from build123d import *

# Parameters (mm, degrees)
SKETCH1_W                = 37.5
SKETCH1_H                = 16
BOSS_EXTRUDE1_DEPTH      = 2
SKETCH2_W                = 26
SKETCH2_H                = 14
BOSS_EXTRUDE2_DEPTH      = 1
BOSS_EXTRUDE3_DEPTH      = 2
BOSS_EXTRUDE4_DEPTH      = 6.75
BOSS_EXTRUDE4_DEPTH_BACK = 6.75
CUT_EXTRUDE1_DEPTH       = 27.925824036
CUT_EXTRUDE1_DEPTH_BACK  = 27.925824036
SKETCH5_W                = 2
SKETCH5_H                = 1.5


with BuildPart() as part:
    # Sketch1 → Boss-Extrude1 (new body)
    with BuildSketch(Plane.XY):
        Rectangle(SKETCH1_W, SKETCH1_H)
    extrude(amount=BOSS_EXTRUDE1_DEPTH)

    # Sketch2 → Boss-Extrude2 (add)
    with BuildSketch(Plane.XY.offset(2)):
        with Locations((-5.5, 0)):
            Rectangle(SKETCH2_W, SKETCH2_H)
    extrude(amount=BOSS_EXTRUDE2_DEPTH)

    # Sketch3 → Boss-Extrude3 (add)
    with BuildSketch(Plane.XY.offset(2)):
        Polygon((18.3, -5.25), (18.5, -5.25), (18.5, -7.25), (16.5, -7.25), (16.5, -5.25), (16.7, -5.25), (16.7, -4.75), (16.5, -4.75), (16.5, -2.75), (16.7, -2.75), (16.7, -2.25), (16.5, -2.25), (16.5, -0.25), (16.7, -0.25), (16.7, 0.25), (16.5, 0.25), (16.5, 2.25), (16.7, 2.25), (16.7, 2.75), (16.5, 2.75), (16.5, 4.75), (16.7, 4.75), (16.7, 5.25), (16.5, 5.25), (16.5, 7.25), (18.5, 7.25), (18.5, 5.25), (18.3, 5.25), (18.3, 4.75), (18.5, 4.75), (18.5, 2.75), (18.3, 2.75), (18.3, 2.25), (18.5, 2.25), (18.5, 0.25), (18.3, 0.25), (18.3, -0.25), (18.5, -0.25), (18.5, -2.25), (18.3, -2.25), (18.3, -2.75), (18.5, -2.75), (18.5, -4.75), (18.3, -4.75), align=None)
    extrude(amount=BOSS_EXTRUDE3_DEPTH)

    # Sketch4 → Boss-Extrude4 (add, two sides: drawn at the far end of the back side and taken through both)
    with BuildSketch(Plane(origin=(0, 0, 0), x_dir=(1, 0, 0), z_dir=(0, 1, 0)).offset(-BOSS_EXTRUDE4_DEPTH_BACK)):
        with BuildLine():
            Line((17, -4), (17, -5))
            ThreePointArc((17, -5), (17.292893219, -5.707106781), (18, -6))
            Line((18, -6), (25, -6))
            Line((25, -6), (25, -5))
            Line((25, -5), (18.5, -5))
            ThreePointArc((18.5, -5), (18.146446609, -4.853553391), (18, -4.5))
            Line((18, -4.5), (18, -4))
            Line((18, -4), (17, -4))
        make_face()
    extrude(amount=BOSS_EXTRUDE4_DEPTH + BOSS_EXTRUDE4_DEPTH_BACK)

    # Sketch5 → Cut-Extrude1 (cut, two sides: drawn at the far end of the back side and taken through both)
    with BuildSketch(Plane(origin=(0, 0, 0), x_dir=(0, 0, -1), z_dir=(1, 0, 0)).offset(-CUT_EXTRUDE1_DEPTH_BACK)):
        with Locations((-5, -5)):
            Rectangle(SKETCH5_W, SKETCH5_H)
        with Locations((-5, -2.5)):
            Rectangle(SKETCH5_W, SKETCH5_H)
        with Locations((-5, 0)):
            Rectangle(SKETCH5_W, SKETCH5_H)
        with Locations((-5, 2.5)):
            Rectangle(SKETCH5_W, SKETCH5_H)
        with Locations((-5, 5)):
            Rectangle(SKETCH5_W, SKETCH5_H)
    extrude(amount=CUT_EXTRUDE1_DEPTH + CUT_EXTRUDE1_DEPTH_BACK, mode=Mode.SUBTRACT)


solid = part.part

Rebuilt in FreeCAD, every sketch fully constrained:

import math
import FreeCAD as App
import Part
import Sketcher
Q = App.Units.Quantity

doc = App.newDocument("Part")
body = doc.addObject("PartDesign::Body", "Body")

# Sketch on XY plane
sketch1 = body.newObject("Sketcher::SketchObject", "Sketch")
sketch1.AttachmentSupport = (doc.getObject("XY_Plane"), [""])
sketch1.MapMode = "FlatFace"
sketch1.addGeometry(Part.LineSegment(App.Vector(-18.75, 8, 0), App.Vector(-18.75, -8, 0)), False)
sketch1.addGeometry(Part.LineSegment(App.Vector(-18.75, -8, 0), App.Vector(18.75, -8, 0)), False)
sketch1.addGeometry(Part.LineSegment(App.Vector(18.75, -8, 0), App.Vector(18.75, 8, 0)), False)
sketch1.addGeometry(Part.LineSegment(App.Vector(18.75, 8, 0), App.Vector(-18.75, 8, 0)), False)
sketch1.addConstraint(Sketcher.Constraint("Coincident", 0, 2, 1, 1))
sketch1.addConstraint(Sketcher.Constraint("Coincident", 1, 2, 2, 1))
sketch1.addConstraint(Sketcher.Constraint("Coincident", 2, 2, 3, 1))
sketch1.addConstraint(Sketcher.Constraint("Coincident", 3, 2, 0, 1))
sketch1.addConstraint(Sketcher.Constraint("Vertical", 0))
sketch1.addConstraint(Sketcher.Constraint("Horizontal", 1))
sketch1.addConstraint(Sketcher.Constraint("Vertical", 2))
sketch1.addConstraint(Sketcher.Constraint("Horizontal", 3))
sketch1.addConstraint(Sketcher.Constraint("Symmetric", 0, 2, 2, 2, -1, 1))
sketch1.addConstraint(Sketcher.Constraint("DistanceY", 0, 2, 0, 1, Q("16 mm")))
sketch1.addConstraint(Sketcher.Constraint("DistanceX", 1, 1, 1, 2, Q("37.5 mm")))
pad1 = body.newObject("PartDesign::Pad", "Pad")
pad1.Profile = sketch1
pad1.Length = 2

# Sketch on XY plane
sketch2 = body.newObject("Sketcher::SketchObject", "Sketch001")
sketch2.AttachmentSupport = (doc.getObject("XY_Plane"), [""])
sketch2.MapMode = "FlatFace"
sketch2.AttachmentOffset = App.Placement(App.Vector(0, 0, 2), App.Rotation())
sketch2.addGeometry(Part.LineSegment(App.Vector(-18.5, 7, 0), App.Vector(-18.5, -7, 0)), False)
sketch2.addGeometry(Part.LineSegment(App.Vector(-18.5, -7, 0), App.Vector(7.5, -7, 0)), False)
sketch2.addGeometry(Part.LineSegment(App.Vector(7.5, -7, 0), App.Vector(7.5, 7, 0)), False)
sketch2.addGeometry(Part.LineSegment(App.Vector(7.5, 7, 0), App.Vector(-18.5, 7, 0)), False)
sketch2.addConstraint(Sketcher.Constraint("Coincident", 0, 2, 1, 1))
sketch2.addConstraint(Sketcher.Constraint("Coincident", 1, 2, 2, 1))
sketch2.addConstraint(Sketcher.Constraint("Coincident", 2, 2, 3, 1))
sketch2.addConstraint(Sketcher.Constraint("Coincident", 3, 2, 0, 1))
sketch2.addConstraint(Sketcher.Constraint("Vertical", 0))
sketch2.addConstraint(Sketcher.Constraint("Horizontal", 1))
sketch2.addConstraint(Sketcher.Constraint("Vertical", 2))
sketch2.addConstraint(Sketcher.Constraint("Horizontal", 3))
sketch2.addConstraint(Sketcher.Constraint("DistanceX", 1, 1, 1, 2, Q("26 mm")))
sketch2.addConstraint(Sketcher.Constraint("DistanceY", 0, 2, 0, 1, Q("14 mm")))
sketch2.addConstraint(Sketcher.Constraint("DistanceY", 0, 2, -1, 1, Q("7 mm")))
sketch2.addConstraint(Sketcher.Constraint("DistanceX", 0, 2, -1, 1, Q("18.5 mm")))
pad2 = body.newObject("PartDesign::Pad", "Pad001")
pad2.Profile = sketch2
pad2.Length = 1

# Sketch on XY plane
sketch3 = body.newObject("Sketcher::SketchObject", "Sketch002")
sketch3.AttachmentSupport = (doc.getObject("XY_Plane"), [""])
sketch3.MapMode = "FlatFace"
sketch3.AttachmentOffset = App.Placement(App.Vector(0, 0, 2), App.Rotation())
sketch3.addGeometry(Part.LineSegment(App.Vector(18.5, -5.25, 0), App.Vector(18.3, -5.25, 0)), False)
sketch3.addGeometry(Part.LineSegment(App.Vector(18.3, -5.25, 0), App.Vector(18.3, -4.75, 0)), False)
sketch3.addGeometry(Part.LineSegment(App.Vector(18.3, -4.75, 0), App.Vector(18.5, -4.75, 0)), False)
sketch3.addGeometry(Part.LineSegment(App.Vector(18.5, -4.75, 0), App.Vector(18.5, -2.75, 0)), False)
sketch3.addGeometry(Part.LineSegment(App.Vector(18.5, -2.75, 0), App.Vector(18.3, -2.75, 0)), False)
sketch3.addGeometry(Part.LineSegment(App.Vector(18.3, -2.75, 0), App.Vector(18.3, -2.25, 0)), False)
sketch3.addGeometry(Part.LineSegment(App.Vector(18.3, -2.25, 0), App.Vector(18.5, -2.25, 0)), False)
sketch3.addGeometry(Part.LineSegment(App.Vector(18.5, -2.25, 0), App.Vector(18.5, -0.25, 0)), False)
sketch3.addGeometry(Part.LineSegment(App.Vector(18.5, -0.25, 0), App.Vector(18.3, -0.25, 0)), False)
sketch3.addGeometry(Part.LineSegment(App.Vector(18.3, -0.25, 0), App.Vector(18.3, 0.25, 0)), False)
sketch3.addGeometry(Part.LineSegment(App.Vector(18.3, 0.25, 0), App.Vector(18.5, 0.25, 0)), False)
sketch3.addGeometry(Part.LineSegment(App.Vector(18.5, 0.25, 0), App.Vector(18.5, 2.25, 0)), False)
sketch3.addGeometry(Part.LineSegment(App.Vector(18.5, 2.25, 0), App.Vector(18.3, 2.25, 0)), False)
sketch3.addGeometry(Part.LineSegment(App.Vector(18.3, 2.25, 0), App.Vector(18.3, 2.75, 0)), False)
sketch3.addGeometry(Part.LineSegment(App.Vector(18.3, 2.75, 0), App.Vector(18.5, 2.75, 0)), False)
sketch3.addGeometry(Part.LineSegment(App.Vector(18.5, 2.75, 0), App.Vector(18.5, 4.75, 0)), False)
sketch3.addGeometry(Part.LineSegment(App.Vector(18.5, 4.75, 0), App.Vector(18.3, 4.75, 0)), False)
sketch3.addGeometry(Part.LineSegment(App.Vector(18.3, 4.75, 0), App.Vector(18.3, 5.25, 0)), False)
sketch3.addGeometry(Part.LineSegment(App.Vector(18.3, 5.25, 0), App.Vector(18.5, 5.25, 0)), False)
sketch3.addGeometry(Part.LineSegment(App.Vector(18.5, 5.25, 0), App.Vector(18.5, 7.25, 0)), False)
sketch3.addGeometry(Part.LineSegment(App.Vector(18.5, 7.25, 0), App.Vector(16.5, 7.25, 0)), False)
sketch3.addGeometry(Part.LineSegment(App.Vector(16.5, 7.25, 0), App.Vector(16.5, 5.25, 0)), False)
sketch3.addGeometry(Part.LineSegment(App.Vector(16.5, 5.25, 0), App.Vector(16.7, 5.25, 0)), False)
sketch3.addGeometry(Part.LineSegment(App.Vector(16.7, 5.25, 0), App.Vector(16.7, 4.75, 0)), False)
sketch3.addGeometry(Part.LineSegment(App.Vector(16.7, 4.75, 0), App.Vector(16.5, 4.75, 0)), False)
sketch3.addGeometry(Part.LineSegment(App.Vector(16.5, 4.75, 0), App.Vector(16.5, 2.75, 0)), False)
sketch3.addGeometry(Part.LineSegment(App.Vector(16.5, 2.75, 0), App.Vector(16.7, 2.75, 0)), False)
sketch3.addGeometry(Part.LineSegment(App.Vector(16.7, 2.75, 0), App.Vector(16.7, 2.25, 0)), False)
sketch3.addGeometry(Part.LineSegment(App.Vector(16.7, 2.25, 0), App.Vector(16.5, 2.25, 0)), False)
sketch3.addGeometry(Part.LineSegment(App.Vector(16.5, 2.25, 0), App.Vector(16.5, 0.25, 0)), False)
sketch3.addGeometry(Part.LineSegment(App.Vector(16.5, 0.25, 0), App.Vector(16.7, 0.25, 0)), False)
sketch3.addGeometry(Part.LineSegment(App.Vector(16.7, 0.25, 0), App.Vector(16.7, -0.25, 0)), False)
sketch3.addGeometry(Part.LineSegment(App.Vector(16.7, -0.25, 0), App.Vector(16.5, -0.25, 0)), False)
sketch3.addGeometry(Part.LineSegment(App.Vector(16.5, -0.25, 0), App.Vector(16.5, -2.25, 0)), False)
sketch3.addGeometry(Part.LineSegment(App.Vector(16.5, -2.25, 0), App.Vector(16.7, -2.25, 0)), False)
sketch3.addGeometry(Part.LineSegment(App.Vector(16.7, -2.25, 0), App.Vector(16.7, -2.75, 0)), False)
sketch3.addGeometry(Part.LineSegment(App.Vector(16.7, -2.75, 0), App.Vector(16.5, -2.75, 0)), False)
sketch3.addGeometry(Part.LineSegment(App.Vector(16.5, -2.75, 0), App.Vector(16.5, -4.75, 0)), False)
sketch3.addGeometry(Part.LineSegment(App.Vector(16.5, -4.75, 0), App.Vector(16.7, -4.75, 0)), False)
sketch3.addGeometry(Part.LineSegment(App.Vector(16.7, -4.75, 0), App.Vector(16.7, -5.25, 0)), False)
sketch3.addGeometry(Part.LineSegment(App.Vector(16.7, -5.25, 0), App.Vector(16.5, -5.25, 0)), False)
sketch3.addGeometry(Part.LineSegment(App.Vector(16.5, -5.25, 0), App.Vector(16.5, -7.25, 0)), False)
sketch3.addGeometry(Part.LineSegment(App.Vector(16.5, -7.25, 0), App.Vector(18.5, -7.25, 0)), False)
sketch3.addGeometry(Part.LineSegment(App.Vector(18.5, -7.25, 0), App.Vector(18.5, -5.25, 0)), False)
sketch3.addConstraint(Sketcher.Constraint("Coincident", 0, 2, 1, 1))
sketch3.addConstraint(Sketcher.Constraint("Coincident", 1, 2, 2, 1))
sketch3.addConstraint(Sketcher.Constraint("Coincident", 2, 2, 3, 1))
sketch3.addConstraint(Sketcher.Constraint("Coincident", 3, 2, 4, 1))
sketch3.addConstraint(Sketcher.Constraint("Coincident", 4, 2, 5, 1))
sketch3.addConstraint(Sketcher.Constraint("Coincident", 5, 2, 6, 1))
sketch3.addConstraint(Sketcher.Constraint("Coincident", 6, 2, 7, 1))
sketch3.addConstraint(Sketcher.Constraint("Coincident", 7, 2, 8, 1))
sketch3.addConstraint(Sketcher.Constraint("Coincident", 8, 2, 9, 1))
sketch3.addConstraint(Sketcher.Constraint("Coincident", 9, 2, 10, 1))
sketch3.addConstraint(Sketcher.Constraint("Coincident", 10, 2, 11, 1))
sketch3.addConstraint(Sketcher.Constraint("Coincident", 11, 2, 12, 1))
sketch3.addConstraint(Sketcher.Constraint("Coincident", 12, 2, 13, 1))
sketch3.addConstraint(Sketcher.Constraint("Coincident", 13, 2, 14, 1))
sketch3.addConstraint(Sketcher.Constraint("Coincident", 14, 2, 15, 1))
sketch3.addConstraint(Sketcher.Constraint("Coincident", 15, 2, 16, 1))
sketch3.addConstraint(Sketcher.Constraint("Coincident", 16, 2, 17, 1))
sketch3.addConstraint(Sketcher.Constraint("Coincident", 17, 2, 18, 1))
sketch3.addConstraint(Sketcher.Constraint("Coincident", 18, 2, 19, 1))
sketch3.addConstraint(Sketcher.Constraint("Coincident", 19, 2, 20, 1))
sketch3.addConstraint(Sketcher.Constraint("Coincident", 20, 2, 21, 1))
sketch3.addConstraint(Sketcher.Constraint("Coincident", 21, 2, 22, 1))
sketch3.addConstraint(Sketcher.Constraint("Coincident", 22, 2, 23, 1))
sketch3.addConstraint(Sketcher.Constraint("Coincident", 23, 2, 24, 1))
sketch3.addConstraint(Sketcher.Constraint("Coincident", 24, 2, 25, 1))
sketch3.addConstraint(Sketcher.Constraint("Coincident", 25, 2, 26, 1))
sketch3.addConstraint(Sketcher.Constraint("Coincident", 26, 2, 27, 1))
sketch3.addConstraint(Sketcher.Constraint("Coincident", 27, 2, 28, 1))
sketch3.addConstraint(Sketcher.Constraint("Coincident", 28, 2, 29, 1))
sketch3.addConstraint(Sketcher.Constraint("Coincident", 29, 2, 30, 1))
sketch3.addConstraint(Sketcher.Constraint("Coincident", 30, 2, 31, 1))
sketch3.addConstraint(Sketcher.Constraint("Coincident", 31, 2, 32, 1))
sketch3.addConstraint(Sketcher.Constraint("Coincident", 32, 2, 33, 1))
sketch3.addConstraint(Sketcher.Constraint("Coincident", 33, 2, 34, 1))
sketch3.addConstraint(Sketcher.Constraint("Coincident", 34, 2, 35, 1))
sketch3.addConstraint(Sketcher.Constraint("Coincident", 35, 2, 36, 1))
sketch3.addConstraint(Sketcher.Constraint("Coincident", 36, 2, 37, 1))
sketch3.addConstraint(Sketcher.Constraint("Coincident", 37, 2, 38, 1))
sketch3.addConstraint(Sketcher.Constraint("Coincident", 38, 2, 39, 1))
sketch3.addConstraint(Sketcher.Constraint("Coincident", 39, 2, 40, 1))
sketch3.addConstraint(Sketcher.Constraint("Coincident", 40, 2, 41, 1))
sketch3.addConstraint(Sketcher.Constraint("Coincident", 41, 2, 42, 1))
sketch3.addConstraint(Sketcher.Constraint("Coincident", 42, 2, 43, 1))
sketch3.addConstraint(Sketcher.Constraint("Coincident", 43, 2, 0, 1))
sketch3.addConstraint(Sketcher.Constraint("Horizontal", 0))
sketch3.addConstraint(Sketcher.Constraint("Vertical", 1))
sketch3.addConstraint(Sketcher.Constraint("Horizontal", 2))
sketch3.addConstraint(Sketcher.Constraint("Vertical", 3))
sketch3.addConstraint(Sketcher.Constraint("Horizontal", 4))
sketch3.addConstraint(Sketcher.Constraint("Vertical", 5))
sketch3.addConstraint(Sketcher.Constraint("Horizontal", 6))
sketch3.addConstraint(Sketcher.Constraint("Vertical", 7))
sketch3.addConstraint(Sketcher.Constraint("Horizontal", 8))
sketch3.addConstraint(Sketcher.Constraint("Vertical", 9))
sketch3.addConstraint(Sketcher.Constraint("Horizontal", 10))
sketch3.addConstraint(Sketcher.Constraint("Vertical", 11))
sketch3.addConstraint(Sketcher.Constraint("Horizontal", 12))
sketch3.addConstraint(Sketcher.Constraint("Vertical", 13))
sketch3.addConstraint(Sketcher.Constraint("Horizontal", 14))
sketch3.addConstraint(Sketcher.Constraint("Vertical", 15))
sketch3.addConstraint(Sketcher.Constraint("Horizontal", 16))
sketch3.addConstraint(Sketcher.Constraint("Vertical", 17))
sketch3.addConstraint(Sketcher.Constraint("Horizontal", 18))
sketch3.addConstraint(Sketcher.Constraint("Vertical", 19))
sketch3.addConstraint(Sketcher.Constraint("Horizontal", 20))
sketch3.addConstraint(Sketcher.Constraint("Vertical", 21))
sketch3.addConstraint(Sketcher.Constraint("Horizontal", 22))
sketch3.addConstraint(Sketcher.Constraint("Vertical", 23))
sketch3.addConstraint(Sketcher.Constraint("Horizontal", 24))
sketch3.addConstraint(Sketcher.Constraint("Vertical", 25))
sketch3.addConstraint(Sketcher.Constraint("Horizontal", 26))
sketch3.addConstraint(Sketcher.Constraint("Vertical", 27))
sketch3.addConstraint(Sketcher.Constraint("Horizontal", 28))
sketch3.addConstraint(Sketcher.Constraint("Vertical", 29))
sketch3.addConstraint(Sketcher.Constraint("Horizontal", 30))
sketch3.addConstraint(Sketcher.Constraint("Vertical", 31))
sketch3.addConstraint(Sketcher.Constraint("Horizontal", 32))
sketch3.addConstraint(Sketcher.Constraint("Vertical", 33))
sketch3.addConstraint(Sketcher.Constraint("Horizontal", 34))
sketch3.addConstraint(Sketcher.Constraint("Vertical", 35))
sketch3.addConstraint(Sketcher.Constraint("Horizontal", 36))
sketch3.addConstraint(Sketcher.Constraint("Vertical", 37))
sketch3.addConstraint(Sketcher.Constraint("Horizontal", 38))
sketch3.addConstraint(Sketcher.Constraint("Vertical", 39))
sketch3.addConstraint(Sketcher.Constraint("Horizontal", 40))
sketch3.addConstraint(Sketcher.Constraint("Vertical", 41))
sketch3.addConstraint(Sketcher.Constraint("Horizontal", 42))
sketch3.addConstraint(Sketcher.Constraint("Vertical", 43))
sketch3.addConstraint(Sketcher.Constraint("Symmetric", 7, 2, 10, 2, -1))
sketch3.addConstraint(Sketcher.Constraint("Symmetric", 5, 2, 12, 2, -1))
sketch3.addConstraint(Sketcher.Constraint("Symmetric", 3, 2, 14, 2, -1))
sketch3.addConstraint(Sketcher.Constraint("Symmetric", 1, 2, 16, 2, -1))
sketch3.addConstraint(Sketcher.Constraint("Symmetric", 29, 2, 32, 2, -1))
sketch3.addConstraint(Sketcher.Constraint("Symmetric", 27, 2, 34, 2, -1))
sketch3.addConstraint(Sketcher.Constraint("Symmetric", 25, 2, 36, 2, -1))
sketch3.addConstraint(Sketcher.Constraint("Symmetric", 23, 2, 38, 2, -1))
sketch3.addConstraint(Sketcher.Constraint("Symmetric", 21, 2, 40, 2, -1))
sketch3.addConstraint(Sketcher.Constraint("Symmetric", 19, 2, 42, 2, -1))
sketch3.addConstraint(Sketcher.Constraint("Horizontal", 18, 2, 21, 2))
sketch3.addConstraint(Sketcher.Constraint("Horizontal", 16, 2, 23, 2))
sketch3.addConstraint(Sketcher.Constraint("Horizontal", 14, 2, 25, 2))
sketch3.addConstraint(Sketcher.Constraint("Horizontal", 12, 2, 27, 2))
sketch3.addConstraint(Sketcher.Constraint("Horizontal", 10, 2, 29, 2))
sketch3.addConstraint(Sketcher.Constraint("Horizontal", 0, 2, 39, 2))
sketch3.addConstraint(Sketcher.Constraint("Vertical", 1, 2, 4, 2))
sketch3.addConstraint(Sketcher.Constraint("Vertical", 3, 2, 6, 2))
sketch3.addConstraint(Sketcher.Constraint("Vertical", 5, 2, 8, 2))
sketch3.addConstraint(Sketcher.Constraint("Vertical", 15, 2, 18, 2))
sketch3.addConstraint(Sketcher.Constraint("Vertical", 21, 2, 24, 2))
sketch3.addConstraint(Sketcher.Constraint("Vertical", 23, 2, 26, 2))
sketch3.addConstraint(Sketcher.Constraint("Vertical", 25, 2, 28, 2))
sketch3.addConstraint(Sketcher.Constraint("Vertical", 27, 2, 30, 2))
sketch3.addConstraint(Sketcher.Constraint("Equal", 18, 22))
sketch3.addConstraint(Sketcher.Constraint("Equal", 42, 3))
sketch3.addConstraint(Sketcher.Constraint("Equal", 1, 5))
sketch3.addConstraint(Sketcher.Constraint("Equal", 3, 7))
sketch3.addConstraint(Sketcher.Constraint("Equal", 5, 9))
sketch3.addConstraint(Sketcher.Constraint("Equal", 15, 19))
sketch3.addConstraint(Sketcher.Constraint("DistanceX", 20, 2, 20, 1, Q("2 mm")))
sketch3.addConstraint(Sketcher.Constraint("DistanceX", 0, 2, 0, 1, Q("0.2 mm")))
sketch3.addConstraint(Sketcher.Constraint("DistanceY", 1, 1, 1, 2, Q("0.5 mm")))
sketch3.addConstraint(Sketcher.Constraint("DistanceX", -1, 1, 0, 2, Q("18.3 mm")))
pad3 = body.newObject("PartDesign::Pad", "Pad002")
pad3.Profile = sketch3
pad3.Length = 2

# Sketch on XZ plane
sketch4 = body.newObject("Sketcher::SketchObject", "Sketch003")
sketch4.AttachmentSupport = (doc.getObject("XZ_Plane"), [""])
sketch4.MapMode = "FlatFace"
sketch4.addGeometry(Part.LineSegment(App.Vector(17, 4, 0), App.Vector(17, 5, 0)), False)
sketch4.addGeometry(Part.ArcOfCircle(Part.Circle(App.Vector(18, 5, 0), App.Vector(0, 0, 1), 1), math.radians(90), math.radians(180)), False)
sketch4.addGeometry(Part.LineSegment(App.Vector(18, 6, 0), App.Vector(25, 6, 0)), False)
sketch4.addGeometry(Part.LineSegment(App.Vector(25, 6, 0), App.Vector(25, 5, 0)), False)
sketch4.addGeometry(Part.LineSegment(App.Vector(25, 5, 0), App.Vector(18.5, 5, 0)), False)
sketch4.addGeometry(Part.ArcOfCircle(Part.Circle(App.Vector(18.5, 4.5, 0), App.Vector(0, 0, 1), 0.5), math.radians(90), math.radians(180)), False)
sketch4.addGeometry(Part.LineSegment(App.Vector(18, 4.5, 0), App.Vector(18, 4, 0)), False)
sketch4.addGeometry(Part.LineSegment(App.Vector(18, 4, 0), App.Vector(17, 4, 0)), False)
sketch4.addConstraint(Sketcher.Constraint("Tangent", 0, 2, 1, 2))
sketch4.addConstraint(Sketcher.Constraint("Tangent", 1, 1, 2, 1))
sketch4.addConstraint(Sketcher.Constraint("Coincident", 2, 2, 3, 1))
sketch4.addConstraint(Sketcher.Constraint("Coincident", 3, 2, 4, 1))
sketch4.addConstraint(Sketcher.Constraint("Tangent", 4, 2, 5, 1))
sketch4.addConstraint(Sketcher.Constraint("Tangent", 5, 2, 6, 1))
sketch4.addConstraint(Sketcher.Constraint("Coincident", 6, 2, 7, 1))
sketch4.addConstraint(Sketcher.Constraint("Coincident", 7, 2, 0, 1))
sketch4.addConstraint(Sketcher.Constraint("Vertical", 0))
sketch4.addConstraint(Sketcher.Constraint("Horizontal", 2))
sketch4.addConstraint(Sketcher.Constraint("Vertical", 3))
sketch4.addConstraint(Sketcher.Constraint("Horizontal", 4))
sketch4.addConstraint(Sketcher.Constraint("Vertical", 6))
sketch4.addConstraint(Sketcher.Constraint("Horizontal", 7))
sketch4.addConstraint(Sketcher.Constraint("Horizontal", 0, 2, 3, 2))
sketch4.addConstraint(Sketcher.Constraint("Vertical", 1, 1, 5, 2))
sketch4.addConstraint(Sketcher.Constraint("Equal", 7, 0))
sketch4.addConstraint(Sketcher.Constraint("Radius", 1, Q("1 mm")))
sketch4.addConstraint(Sketcher.Constraint("Radius", 5, Q("0.5 mm")))
sketch4.addConstraint(Sketcher.Constraint("DistanceX", 2, 1, 2, 2, Q("7 mm")))
sketch4.addConstraint(Sketcher.Constraint("DistanceX", -1, 1, 1, 3, Q("18 mm")))
sketch4.addConstraint(Sketcher.Constraint("DistanceY", -1, 1, 1, 3, Q("5 mm")))
pad4 = body.newObject("PartDesign::Pad", "Pad003")
pad4.Profile = sketch4
pad4.Type = "TwoLengths"
pad4.Length = 6.75
pad4.Length2 = 6.75
pad4.Reversed = True

# Sketch on YZ plane
sketch5 = body.newObject("Sketcher::SketchObject", "Sketch004")
sketch5.AttachmentSupport = (doc.getObject("YZ_Plane"), [""])
sketch5.MapMode = "FlatFace"
sketch5.addGeometry(Part.LineSegment(App.Vector(-4.25, 6, 0), App.Vector(-5.75, 6, 0)), False)
sketch5.addGeometry(Part.LineSegment(App.Vector(-5.75, 6, 0), App.Vector(-5.75, 4, 0)), False)
sketch5.addGeometry(Part.LineSegment(App.Vector(-5.75, 4, 0), App.Vector(-4.25, 4, 0)), False)
sketch5.addGeometry(Part.LineSegment(App.Vector(-4.25, 4, 0), App.Vector(-4.25, 6, 0)), False)
sketch5.addGeometry(Part.LineSegment(App.Vector(-1.75, 6, 0), App.Vector(-3.25, 6, 0)), False)
sketch5.addGeometry(Part.LineSegment(App.Vector(-3.25, 6, 0), App.Vector(-3.25, 4, 0)), False)
sketch5.addGeometry(Part.LineSegment(App.Vector(-3.25, 4, 0), App.Vector(-1.75, 4, 0)), False)
sketch5.addGeometry(Part.LineSegment(App.Vector(-1.75, 4, 0), App.Vector(-1.75, 6, 0)), False)
sketch5.addGeometry(Part.LineSegment(App.Vector(0.75, 6, 0), App.Vector(-0.75, 6, 0)), False)
sketch5.addGeometry(Part.LineSegment(App.Vector(-0.75, 6, 0), App.Vector(-0.75, 4, 0)), False)
sketch5.addGeometry(Part.LineSegment(App.Vector(-0.75, 4, 0), App.Vector(0.75, 4, 0)), False)
sketch5.addGeometry(Part.LineSegment(App.Vector(0.75, 4, 0), App.Vector(0.75, 6, 0)), False)
sketch5.addGeometry(Part.LineSegment(App.Vector(3.25, 6, 0), App.Vector(1.75, 6, 0)), False)
sketch5.addGeometry(Part.LineSegment(App.Vector(1.75, 6, 0), App.Vector(1.75, 4, 0)), False)
sketch5.addGeometry(Part.LineSegment(App.Vector(1.75, 4, 0), App.Vector(3.25, 4, 0)), False)
sketch5.addGeometry(Part.LineSegment(App.Vector(3.25, 4, 0), App.Vector(3.25, 6, 0)), False)
sketch5.addGeometry(Part.LineSegment(App.Vector(5.75, 6, 0), App.Vector(4.25, 6, 0)), False)
sketch5.addGeometry(Part.LineSegment(App.Vector(4.25, 6, 0), App.Vector(4.25, 4, 0)), False)
sketch5.addGeometry(Part.LineSegment(App.Vector(4.25, 4, 0), App.Vector(5.75, 4, 0)), False)
sketch5.addGeometry(Part.LineSegment(App.Vector(5.75, 4, 0), App.Vector(5.75, 6, 0)), False)
sketch5.addConstraint(Sketcher.Constraint("Coincident", 0, 2, 1, 1))
sketch5.addConstraint(Sketcher.Constraint("Coincident", 1, 2, 2, 1))
sketch5.addConstraint(Sketcher.Constraint("Coincident", 2, 2, 3, 1))
sketch5.addConstraint(Sketcher.Constraint("Coincident", 3, 2, 0, 1))
sketch5.addConstraint(Sketcher.Constraint("Coincident", 4, 2, 5, 1))
sketch5.addConstraint(Sketcher.Constraint("Coincident", 5, 2, 6, 1))
sketch5.addConstraint(Sketcher.Constraint("Coincident", 6, 2, 7, 1))
sketch5.addConstraint(Sketcher.Constraint("Coincident", 7, 2, 4, 1))
sketch5.addConstraint(Sketcher.Constraint("Coincident", 8, 2, 9, 1))
sketch5.addConstraint(Sketcher.Constraint("Coincident", 9, 2, 10, 1))
sketch5.addConstraint(Sketcher.Constraint("Coincident", 10, 2, 11, 1))
sketch5.addConstraint(Sketcher.Constraint("Coincident", 11, 2, 8, 1))
sketch5.addConstraint(Sketcher.Constraint("Coincident", 12, 2, 13, 1))
sketch5.addConstraint(Sketcher.Constraint("Coincident", 13, 2, 14, 1))
sketch5.addConstraint(Sketcher.Constraint("Coincident", 14, 2, 15, 1))
sketch5.addConstraint(Sketcher.Constraint("Coincident", 15, 2, 12, 1))
sketch5.addConstraint(Sketcher.Constraint("Coincident", 16, 2, 17, 1))
sketch5.addConstraint(Sketcher.Constraint("Coincident", 17, 2, 18, 1))
sketch5.addConstraint(Sketcher.Constraint("Coincident", 18, 2, 19, 1))
sketch5.addConstraint(Sketcher.Constraint("Coincident", 19, 2, 16, 1))
sketch5.addConstraint(Sketcher.Constraint("Horizontal", 0))
sketch5.addConstraint(Sketcher.Constraint("Vertical", 1))
sketch5.addConstraint(Sketcher.Constraint("Horizontal", 2))
sketch5.addConstraint(Sketcher.Constraint("Vertical", 3))
sketch5.addConstraint(Sketcher.Constraint("Horizontal", 4))
sketch5.addConstraint(Sketcher.Constraint("Vertical", 5))
sketch5.addConstraint(Sketcher.Constraint("Horizontal", 6))
sketch5.addConstraint(Sketcher.Constraint("Vertical", 7))
sketch5.addConstraint(Sketcher.Constraint("Horizontal", 8))
sketch5.addConstraint(Sketcher.Constraint("Vertical", 9))
sketch5.addConstraint(Sketcher.Constraint("Horizontal", 10))
sketch5.addConstraint(Sketcher.Constraint("Vertical", 11))
sketch5.addConstraint(Sketcher.Constraint("Horizontal", 12))
sketch5.addConstraint(Sketcher.Constraint("Vertical", 13))
sketch5.addConstraint(Sketcher.Constraint("Horizontal", 14))
sketch5.addConstraint(Sketcher.Constraint("Vertical", 15))
sketch5.addConstraint(Sketcher.Constraint("Horizontal", 16))
sketch5.addConstraint(Sketcher.Constraint("Vertical", 17))
sketch5.addConstraint(Sketcher.Constraint("Horizontal", 18))
sketch5.addConstraint(Sketcher.Constraint("Vertical", 19))
sketch5.addConstraint(Sketcher.Constraint("Symmetric", 7, 2, 12, 2, -2))
sketch5.addConstraint(Sketcher.Constraint("Symmetric", 5, 2, 14, 2, -2))
sketch5.addConstraint(Sketcher.Constraint("Symmetric", 3, 2, 16, 2, -2))
sketch5.addConstraint(Sketcher.Constraint("Symmetric", 1, 2, 18, 2, -2))
sketch5.addConstraint(Sketcher.Constraint("Horizontal", 3, 2, 4, 2))
sketch5.addConstraint(Sketcher.Constraint("Horizontal", 2, 2, 5, 2))
sketch5.addConstraint(Sketcher.Constraint("Horizontal", 7, 2, 8, 2))
sketch5.addConstraint(Sketcher.Constraint("Horizontal", 6, 2, 9, 2))
sketch5.addConstraint(Sketcher.Constraint("Equal", 2, 4))
sketch5.addConstraint(Sketcher.Constraint("Equal", 6, 8))
sketch5.addConstraint(Sketcher.Constraint("DistanceY", 1, 2, 1, 1, Q("2 mm")))
sketch5.addConstraint(Sketcher.Constraint("DistanceX", 0, 2, 0, 1, Q("1.5 mm")))
sketch5.addConstraint(Sketcher.Constraint("DistanceY", -1, 1, 0, 2, Q("6 mm")))
sketch5.addConstraint(Sketcher.Constraint("DistanceX", 3, 2, 4, 2, Q("1 mm")))
sketch5.addConstraint(Sketcher.Constraint("DistanceX", 7, 2, 8, 2, Q("1 mm")))
sketch5.addConstraint(Sketcher.Constraint("DistanceX", 11, 2, 12, 2, Q("1 mm")))
pocket1 = body.newObject("PartDesign::Pocket", "Pocket")
pocket1.Profile = sketch5
pocket1.Type = "ThroughAll"
pocket1.Midplane = True

doc.recompute()
